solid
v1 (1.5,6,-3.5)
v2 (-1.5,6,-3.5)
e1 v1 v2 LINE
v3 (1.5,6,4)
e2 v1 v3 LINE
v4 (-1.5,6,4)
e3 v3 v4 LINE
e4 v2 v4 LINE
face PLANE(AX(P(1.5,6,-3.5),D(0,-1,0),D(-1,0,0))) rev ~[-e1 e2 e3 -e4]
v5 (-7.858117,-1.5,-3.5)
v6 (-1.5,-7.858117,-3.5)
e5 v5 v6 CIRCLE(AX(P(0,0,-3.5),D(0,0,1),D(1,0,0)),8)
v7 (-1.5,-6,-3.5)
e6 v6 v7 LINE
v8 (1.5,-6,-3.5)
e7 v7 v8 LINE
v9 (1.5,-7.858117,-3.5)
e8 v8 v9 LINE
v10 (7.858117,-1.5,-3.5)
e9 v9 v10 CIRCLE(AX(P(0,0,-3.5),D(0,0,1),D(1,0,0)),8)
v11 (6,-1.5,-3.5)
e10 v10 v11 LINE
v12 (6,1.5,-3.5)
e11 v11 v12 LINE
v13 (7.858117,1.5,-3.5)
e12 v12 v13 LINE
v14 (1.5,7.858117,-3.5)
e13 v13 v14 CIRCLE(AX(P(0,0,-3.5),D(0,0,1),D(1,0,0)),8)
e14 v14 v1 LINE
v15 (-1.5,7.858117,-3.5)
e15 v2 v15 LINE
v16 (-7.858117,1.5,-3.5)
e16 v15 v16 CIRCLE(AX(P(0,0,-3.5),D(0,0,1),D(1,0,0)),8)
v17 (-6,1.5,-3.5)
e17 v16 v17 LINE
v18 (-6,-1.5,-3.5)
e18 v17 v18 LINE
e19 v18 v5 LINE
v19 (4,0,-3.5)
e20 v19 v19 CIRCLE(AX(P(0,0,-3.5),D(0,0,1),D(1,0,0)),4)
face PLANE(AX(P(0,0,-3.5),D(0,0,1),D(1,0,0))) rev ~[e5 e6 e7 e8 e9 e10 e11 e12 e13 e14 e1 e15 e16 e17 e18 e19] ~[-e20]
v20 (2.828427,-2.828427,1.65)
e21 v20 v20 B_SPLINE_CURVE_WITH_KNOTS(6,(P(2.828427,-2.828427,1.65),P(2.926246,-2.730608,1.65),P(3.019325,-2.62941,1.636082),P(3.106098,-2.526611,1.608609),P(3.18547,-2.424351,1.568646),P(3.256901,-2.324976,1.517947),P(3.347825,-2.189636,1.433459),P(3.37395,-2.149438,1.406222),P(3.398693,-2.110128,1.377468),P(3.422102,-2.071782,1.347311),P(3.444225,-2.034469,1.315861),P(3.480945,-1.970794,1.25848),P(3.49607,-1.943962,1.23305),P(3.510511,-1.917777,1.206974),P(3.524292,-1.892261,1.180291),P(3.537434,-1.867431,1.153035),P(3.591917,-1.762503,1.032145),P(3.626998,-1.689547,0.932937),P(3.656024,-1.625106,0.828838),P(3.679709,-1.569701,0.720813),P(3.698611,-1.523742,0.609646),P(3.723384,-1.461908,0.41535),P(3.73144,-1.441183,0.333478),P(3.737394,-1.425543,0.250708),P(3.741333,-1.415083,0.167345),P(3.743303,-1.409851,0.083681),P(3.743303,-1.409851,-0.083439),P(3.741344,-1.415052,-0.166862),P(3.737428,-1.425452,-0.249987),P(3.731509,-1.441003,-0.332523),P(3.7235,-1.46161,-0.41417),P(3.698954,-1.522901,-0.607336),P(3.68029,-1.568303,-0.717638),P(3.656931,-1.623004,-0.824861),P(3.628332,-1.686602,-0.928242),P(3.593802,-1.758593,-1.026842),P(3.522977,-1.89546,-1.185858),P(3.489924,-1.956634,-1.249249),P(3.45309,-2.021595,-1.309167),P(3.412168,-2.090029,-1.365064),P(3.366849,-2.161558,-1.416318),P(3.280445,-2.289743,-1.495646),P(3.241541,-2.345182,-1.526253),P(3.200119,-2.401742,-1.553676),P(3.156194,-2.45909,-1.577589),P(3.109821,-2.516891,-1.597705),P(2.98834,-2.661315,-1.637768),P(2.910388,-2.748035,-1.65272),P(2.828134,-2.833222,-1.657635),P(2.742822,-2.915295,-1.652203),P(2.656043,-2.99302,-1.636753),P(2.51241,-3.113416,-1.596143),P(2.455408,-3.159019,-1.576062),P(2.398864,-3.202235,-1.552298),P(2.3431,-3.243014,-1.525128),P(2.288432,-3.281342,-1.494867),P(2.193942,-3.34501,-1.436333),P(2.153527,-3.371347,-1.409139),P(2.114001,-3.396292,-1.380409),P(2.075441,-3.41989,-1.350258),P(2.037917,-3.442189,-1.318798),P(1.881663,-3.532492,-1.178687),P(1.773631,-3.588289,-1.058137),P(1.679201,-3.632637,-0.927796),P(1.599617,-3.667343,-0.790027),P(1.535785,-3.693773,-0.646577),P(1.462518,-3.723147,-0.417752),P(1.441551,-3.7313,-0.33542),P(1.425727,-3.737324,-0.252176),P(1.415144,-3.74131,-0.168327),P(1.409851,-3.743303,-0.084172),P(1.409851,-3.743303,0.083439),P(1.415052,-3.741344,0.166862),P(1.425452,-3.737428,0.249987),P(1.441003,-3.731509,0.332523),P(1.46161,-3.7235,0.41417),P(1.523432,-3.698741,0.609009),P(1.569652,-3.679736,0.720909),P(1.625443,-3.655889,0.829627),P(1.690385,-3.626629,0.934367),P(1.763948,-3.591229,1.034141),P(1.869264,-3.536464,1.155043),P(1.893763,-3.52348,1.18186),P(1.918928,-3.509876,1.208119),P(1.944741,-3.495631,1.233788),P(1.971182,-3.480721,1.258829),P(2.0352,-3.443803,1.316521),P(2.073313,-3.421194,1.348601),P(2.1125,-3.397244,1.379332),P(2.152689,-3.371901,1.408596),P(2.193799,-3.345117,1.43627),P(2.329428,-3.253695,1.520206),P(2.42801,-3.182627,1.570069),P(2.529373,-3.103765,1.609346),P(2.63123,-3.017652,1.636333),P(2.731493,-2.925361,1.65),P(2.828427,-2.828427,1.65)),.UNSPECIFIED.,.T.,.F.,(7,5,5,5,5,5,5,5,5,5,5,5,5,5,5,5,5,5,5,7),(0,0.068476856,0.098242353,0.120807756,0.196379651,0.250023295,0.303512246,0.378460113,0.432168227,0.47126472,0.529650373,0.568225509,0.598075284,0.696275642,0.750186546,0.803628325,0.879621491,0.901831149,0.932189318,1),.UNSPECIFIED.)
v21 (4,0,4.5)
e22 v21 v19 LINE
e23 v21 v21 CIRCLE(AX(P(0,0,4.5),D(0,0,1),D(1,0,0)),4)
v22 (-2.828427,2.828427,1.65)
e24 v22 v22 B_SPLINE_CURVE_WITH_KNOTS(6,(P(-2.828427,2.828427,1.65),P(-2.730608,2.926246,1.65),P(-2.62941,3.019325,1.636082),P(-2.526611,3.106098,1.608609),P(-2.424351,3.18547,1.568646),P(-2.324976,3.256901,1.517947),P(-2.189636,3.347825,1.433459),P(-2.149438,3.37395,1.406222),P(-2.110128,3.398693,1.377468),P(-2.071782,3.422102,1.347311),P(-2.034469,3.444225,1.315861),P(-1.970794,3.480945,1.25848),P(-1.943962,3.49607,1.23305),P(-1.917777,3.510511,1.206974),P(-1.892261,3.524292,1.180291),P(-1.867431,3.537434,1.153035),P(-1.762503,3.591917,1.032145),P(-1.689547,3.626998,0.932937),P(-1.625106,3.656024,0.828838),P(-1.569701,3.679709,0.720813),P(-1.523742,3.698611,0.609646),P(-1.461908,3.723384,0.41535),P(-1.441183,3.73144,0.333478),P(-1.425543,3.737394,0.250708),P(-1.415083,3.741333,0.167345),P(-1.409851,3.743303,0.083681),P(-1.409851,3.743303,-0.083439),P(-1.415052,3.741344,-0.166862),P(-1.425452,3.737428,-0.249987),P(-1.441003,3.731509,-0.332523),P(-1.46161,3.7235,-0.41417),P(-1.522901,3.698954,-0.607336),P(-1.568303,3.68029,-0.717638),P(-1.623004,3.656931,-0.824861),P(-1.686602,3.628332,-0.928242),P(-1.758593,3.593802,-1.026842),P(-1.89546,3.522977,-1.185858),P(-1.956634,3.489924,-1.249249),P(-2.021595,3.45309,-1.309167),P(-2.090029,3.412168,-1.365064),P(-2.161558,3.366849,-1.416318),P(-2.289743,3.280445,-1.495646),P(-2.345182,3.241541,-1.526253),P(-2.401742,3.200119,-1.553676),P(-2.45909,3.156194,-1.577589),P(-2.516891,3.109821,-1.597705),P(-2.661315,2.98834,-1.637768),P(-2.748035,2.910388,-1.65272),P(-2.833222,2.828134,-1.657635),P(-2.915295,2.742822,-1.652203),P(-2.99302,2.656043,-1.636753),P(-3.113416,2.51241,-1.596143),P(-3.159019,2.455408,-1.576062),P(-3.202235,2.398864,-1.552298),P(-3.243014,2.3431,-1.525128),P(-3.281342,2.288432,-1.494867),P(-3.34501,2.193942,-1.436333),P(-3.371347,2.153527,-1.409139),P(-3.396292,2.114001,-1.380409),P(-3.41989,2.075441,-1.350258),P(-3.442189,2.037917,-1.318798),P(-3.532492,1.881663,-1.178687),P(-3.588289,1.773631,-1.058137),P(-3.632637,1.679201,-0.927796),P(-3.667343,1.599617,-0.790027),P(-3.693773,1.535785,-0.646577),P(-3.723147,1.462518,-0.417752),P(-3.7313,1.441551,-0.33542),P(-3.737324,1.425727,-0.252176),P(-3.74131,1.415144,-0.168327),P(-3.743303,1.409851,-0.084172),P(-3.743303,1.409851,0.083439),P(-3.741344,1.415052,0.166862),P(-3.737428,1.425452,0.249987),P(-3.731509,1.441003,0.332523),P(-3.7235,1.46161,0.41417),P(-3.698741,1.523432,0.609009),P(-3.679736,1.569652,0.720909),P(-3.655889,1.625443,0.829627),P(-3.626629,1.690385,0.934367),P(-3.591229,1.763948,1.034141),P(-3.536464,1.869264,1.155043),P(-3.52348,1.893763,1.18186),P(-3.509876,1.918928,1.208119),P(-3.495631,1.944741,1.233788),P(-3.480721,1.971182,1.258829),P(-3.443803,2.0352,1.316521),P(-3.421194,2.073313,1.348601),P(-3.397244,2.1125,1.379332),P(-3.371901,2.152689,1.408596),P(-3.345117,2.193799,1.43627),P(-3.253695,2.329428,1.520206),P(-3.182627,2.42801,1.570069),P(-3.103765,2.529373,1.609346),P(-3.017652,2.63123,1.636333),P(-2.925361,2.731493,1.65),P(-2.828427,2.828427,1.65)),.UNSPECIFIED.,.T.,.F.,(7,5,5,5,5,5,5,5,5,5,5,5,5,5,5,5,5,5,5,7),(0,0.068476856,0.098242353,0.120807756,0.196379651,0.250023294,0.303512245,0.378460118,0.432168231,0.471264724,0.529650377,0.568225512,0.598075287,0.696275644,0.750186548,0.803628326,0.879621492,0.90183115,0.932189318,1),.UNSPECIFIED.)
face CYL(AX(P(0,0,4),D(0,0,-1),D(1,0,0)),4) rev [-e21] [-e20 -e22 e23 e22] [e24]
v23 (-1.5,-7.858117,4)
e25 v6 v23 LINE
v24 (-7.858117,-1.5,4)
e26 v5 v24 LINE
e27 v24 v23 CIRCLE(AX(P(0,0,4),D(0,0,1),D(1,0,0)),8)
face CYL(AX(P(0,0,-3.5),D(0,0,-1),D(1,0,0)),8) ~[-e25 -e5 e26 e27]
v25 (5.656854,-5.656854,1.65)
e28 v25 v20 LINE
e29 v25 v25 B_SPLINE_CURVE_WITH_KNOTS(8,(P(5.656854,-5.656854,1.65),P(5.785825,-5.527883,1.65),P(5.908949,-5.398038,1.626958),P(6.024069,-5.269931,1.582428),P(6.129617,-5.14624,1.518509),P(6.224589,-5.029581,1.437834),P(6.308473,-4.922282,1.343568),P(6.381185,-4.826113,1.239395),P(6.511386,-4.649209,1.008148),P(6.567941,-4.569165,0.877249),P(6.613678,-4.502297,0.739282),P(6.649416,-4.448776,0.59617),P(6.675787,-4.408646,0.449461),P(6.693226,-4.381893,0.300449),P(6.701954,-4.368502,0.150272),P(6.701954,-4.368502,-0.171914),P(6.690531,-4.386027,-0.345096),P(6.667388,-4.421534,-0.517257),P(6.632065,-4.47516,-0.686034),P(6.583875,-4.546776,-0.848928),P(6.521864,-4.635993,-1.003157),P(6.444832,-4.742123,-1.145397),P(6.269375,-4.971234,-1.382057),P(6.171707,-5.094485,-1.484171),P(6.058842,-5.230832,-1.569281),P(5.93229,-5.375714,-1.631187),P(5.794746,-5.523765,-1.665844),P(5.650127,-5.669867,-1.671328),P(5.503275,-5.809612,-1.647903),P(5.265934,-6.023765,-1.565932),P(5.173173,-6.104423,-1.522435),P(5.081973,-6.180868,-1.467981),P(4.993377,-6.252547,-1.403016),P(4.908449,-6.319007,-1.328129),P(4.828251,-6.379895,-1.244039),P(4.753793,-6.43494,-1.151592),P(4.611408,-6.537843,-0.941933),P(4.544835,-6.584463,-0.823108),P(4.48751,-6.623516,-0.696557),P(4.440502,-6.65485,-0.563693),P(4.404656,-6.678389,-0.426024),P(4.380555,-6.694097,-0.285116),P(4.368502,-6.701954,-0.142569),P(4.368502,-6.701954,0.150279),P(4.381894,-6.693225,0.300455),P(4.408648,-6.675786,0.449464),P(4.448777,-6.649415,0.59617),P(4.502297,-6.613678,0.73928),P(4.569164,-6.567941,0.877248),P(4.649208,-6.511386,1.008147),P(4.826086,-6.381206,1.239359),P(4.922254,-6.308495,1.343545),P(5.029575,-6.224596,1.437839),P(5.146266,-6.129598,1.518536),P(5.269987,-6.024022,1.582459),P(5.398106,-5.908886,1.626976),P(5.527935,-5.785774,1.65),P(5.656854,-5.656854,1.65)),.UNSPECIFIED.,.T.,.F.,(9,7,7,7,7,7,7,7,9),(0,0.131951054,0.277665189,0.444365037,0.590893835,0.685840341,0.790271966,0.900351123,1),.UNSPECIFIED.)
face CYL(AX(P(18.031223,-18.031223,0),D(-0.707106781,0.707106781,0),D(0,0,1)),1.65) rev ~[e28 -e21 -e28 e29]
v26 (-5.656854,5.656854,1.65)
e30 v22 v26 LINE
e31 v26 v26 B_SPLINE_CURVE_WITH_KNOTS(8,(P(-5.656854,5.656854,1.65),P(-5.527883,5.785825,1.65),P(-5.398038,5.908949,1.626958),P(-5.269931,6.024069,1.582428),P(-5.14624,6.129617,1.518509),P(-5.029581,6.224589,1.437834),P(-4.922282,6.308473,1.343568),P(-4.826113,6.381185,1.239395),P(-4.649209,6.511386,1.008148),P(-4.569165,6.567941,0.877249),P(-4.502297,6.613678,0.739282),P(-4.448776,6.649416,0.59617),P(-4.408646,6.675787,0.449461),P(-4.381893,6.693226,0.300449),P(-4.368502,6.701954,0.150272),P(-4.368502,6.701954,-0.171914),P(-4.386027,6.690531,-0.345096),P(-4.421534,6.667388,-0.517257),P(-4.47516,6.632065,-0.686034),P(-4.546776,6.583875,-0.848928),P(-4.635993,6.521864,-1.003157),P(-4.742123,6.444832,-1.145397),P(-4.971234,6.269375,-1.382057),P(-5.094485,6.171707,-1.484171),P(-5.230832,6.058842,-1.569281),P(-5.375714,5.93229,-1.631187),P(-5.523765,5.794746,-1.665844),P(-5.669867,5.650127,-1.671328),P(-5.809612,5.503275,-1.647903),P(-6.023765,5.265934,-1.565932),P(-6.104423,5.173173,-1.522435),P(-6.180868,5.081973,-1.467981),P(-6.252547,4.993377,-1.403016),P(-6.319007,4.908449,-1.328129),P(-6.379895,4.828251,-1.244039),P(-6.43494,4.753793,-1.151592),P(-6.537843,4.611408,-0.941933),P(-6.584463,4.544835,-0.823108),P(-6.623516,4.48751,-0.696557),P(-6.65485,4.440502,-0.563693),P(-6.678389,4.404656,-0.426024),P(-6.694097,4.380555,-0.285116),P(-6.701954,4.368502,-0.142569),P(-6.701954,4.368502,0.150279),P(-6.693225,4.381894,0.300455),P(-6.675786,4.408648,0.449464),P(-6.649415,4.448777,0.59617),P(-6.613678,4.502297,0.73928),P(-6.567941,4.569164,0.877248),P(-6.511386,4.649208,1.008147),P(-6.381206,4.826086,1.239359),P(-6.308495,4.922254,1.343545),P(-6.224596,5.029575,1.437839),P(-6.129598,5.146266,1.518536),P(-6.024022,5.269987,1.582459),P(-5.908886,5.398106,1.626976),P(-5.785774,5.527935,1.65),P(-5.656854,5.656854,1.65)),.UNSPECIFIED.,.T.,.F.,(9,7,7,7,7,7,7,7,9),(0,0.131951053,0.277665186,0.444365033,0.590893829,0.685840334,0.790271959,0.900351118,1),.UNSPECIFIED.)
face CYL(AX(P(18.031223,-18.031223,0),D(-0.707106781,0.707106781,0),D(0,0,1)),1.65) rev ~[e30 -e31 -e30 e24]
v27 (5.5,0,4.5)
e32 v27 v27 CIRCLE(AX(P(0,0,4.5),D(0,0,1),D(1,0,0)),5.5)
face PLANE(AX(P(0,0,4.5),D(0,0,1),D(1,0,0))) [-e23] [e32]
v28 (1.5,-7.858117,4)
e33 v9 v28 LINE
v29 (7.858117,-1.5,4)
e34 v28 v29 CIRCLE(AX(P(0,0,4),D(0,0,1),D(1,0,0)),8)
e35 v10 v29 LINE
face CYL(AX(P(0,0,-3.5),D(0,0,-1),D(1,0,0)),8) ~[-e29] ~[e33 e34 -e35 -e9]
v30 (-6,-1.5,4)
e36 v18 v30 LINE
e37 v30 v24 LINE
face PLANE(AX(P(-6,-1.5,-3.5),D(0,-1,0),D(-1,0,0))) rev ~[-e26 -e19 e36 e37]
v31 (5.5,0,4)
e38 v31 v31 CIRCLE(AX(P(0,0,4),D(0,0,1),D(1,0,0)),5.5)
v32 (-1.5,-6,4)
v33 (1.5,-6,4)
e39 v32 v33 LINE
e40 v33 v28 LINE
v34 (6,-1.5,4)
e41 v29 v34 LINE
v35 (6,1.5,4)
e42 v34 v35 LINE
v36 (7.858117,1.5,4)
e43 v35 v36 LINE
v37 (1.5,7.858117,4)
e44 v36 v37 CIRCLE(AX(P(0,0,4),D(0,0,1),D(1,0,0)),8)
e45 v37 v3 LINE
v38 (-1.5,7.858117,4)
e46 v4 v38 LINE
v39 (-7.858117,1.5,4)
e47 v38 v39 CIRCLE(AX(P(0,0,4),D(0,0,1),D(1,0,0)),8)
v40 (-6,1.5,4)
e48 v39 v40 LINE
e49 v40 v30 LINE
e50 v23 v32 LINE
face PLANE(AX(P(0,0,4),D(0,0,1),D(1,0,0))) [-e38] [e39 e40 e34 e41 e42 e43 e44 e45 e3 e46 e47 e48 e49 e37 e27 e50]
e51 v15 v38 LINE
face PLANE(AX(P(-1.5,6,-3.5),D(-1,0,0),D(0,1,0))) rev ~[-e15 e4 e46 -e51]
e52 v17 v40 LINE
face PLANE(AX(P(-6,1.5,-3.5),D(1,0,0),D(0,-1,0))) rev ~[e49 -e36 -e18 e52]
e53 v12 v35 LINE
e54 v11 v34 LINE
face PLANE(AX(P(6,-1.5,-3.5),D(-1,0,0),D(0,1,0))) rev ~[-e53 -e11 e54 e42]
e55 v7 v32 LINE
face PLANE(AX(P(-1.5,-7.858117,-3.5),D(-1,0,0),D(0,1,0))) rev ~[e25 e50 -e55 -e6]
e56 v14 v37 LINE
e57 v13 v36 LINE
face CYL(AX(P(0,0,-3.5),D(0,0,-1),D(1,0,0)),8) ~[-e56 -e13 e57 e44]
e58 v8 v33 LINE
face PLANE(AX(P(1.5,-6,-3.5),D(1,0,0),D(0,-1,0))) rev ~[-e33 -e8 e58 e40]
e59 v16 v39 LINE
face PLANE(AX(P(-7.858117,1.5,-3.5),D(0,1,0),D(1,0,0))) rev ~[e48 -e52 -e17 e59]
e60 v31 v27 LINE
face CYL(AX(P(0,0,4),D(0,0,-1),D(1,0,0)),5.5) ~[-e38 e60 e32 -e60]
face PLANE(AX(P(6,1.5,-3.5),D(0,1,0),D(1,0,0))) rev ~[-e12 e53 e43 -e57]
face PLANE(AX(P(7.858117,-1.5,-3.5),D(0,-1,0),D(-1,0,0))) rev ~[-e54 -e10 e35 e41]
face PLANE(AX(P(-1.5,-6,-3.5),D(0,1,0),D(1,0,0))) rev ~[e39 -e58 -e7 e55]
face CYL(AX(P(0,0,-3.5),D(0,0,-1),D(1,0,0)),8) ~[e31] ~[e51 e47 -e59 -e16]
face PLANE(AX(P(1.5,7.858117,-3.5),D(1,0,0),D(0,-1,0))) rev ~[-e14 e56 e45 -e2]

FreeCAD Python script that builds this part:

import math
import FreeCAD as App
import Part
import Sketcher

doc = App.newDocument("Part")
body = doc.addObject("PartDesign::Body", "Body")

# Sketch on XY plane
sketch1 = body.newObject("Sketcher::SketchObject", "Sketch")
sketch1.AttachmentSupport = (doc.getObject("XY_Plane"), [""])
sketch1.MapMode = "FlatFace"
sketch1.AttachmentOffset = App.Placement(App.Vector(0, 0, -3.5), App.Rotation())
sketch1.addGeometry([
    Part.Circle(App.Vector(0, 0, 0), App.Vector(0, 0, 1), 8),
    Part.Circle(App.Vector(0, 0, 0), App.Vector(0, 0, 1), 4),
], False)
sketch1.addConstraint([
    Sketcher.Constraint("Coincident", 0, 3, -1, 1),
    Sketcher.Constraint("Coincident", 1, 3, -1, 1),
    Sketcher.Constraint("Diameter", 0, 16.0),
    Sketcher.Constraint("Diameter", 1, 8.0),
])
pad1 = body.newObject("PartDesign::Pad", "Pad")
pad1.Profile = sketch1
pad1.Length = 7.5

# Sketch on XY plane
sketch2 = body.newObject("Sketcher::SketchObject", "Sketch001")
sketch2.AttachmentSupport = (doc.getObject("XY_Plane"), [""])
sketch2.MapMode = "FlatFace"
sketch2.AttachmentOffset = App.Placement(App.Vector(0, 0, 4), App.Rotation())
sketch2.addGeometry([
    Part.Circle(App.Vector(0, 0, 0), App.Vector(0, 0, 1), 5.5),
    Part.Circle(App.Vector(0, 0, 0), App.Vector(0, 0, 1), 4),
], False)
sketch2.addConstraint([
    Sketcher.Constraint("Coincident", 0, 3, -1, 1),
    Sketcher.Constraint("Coincident", 1, 3, -1, 1),
    Sketcher.Constraint("Diameter", 0, 11.0),
    Sketcher.Constraint("Diameter", 1, 8.0),
])
pad2 = body.newObject("PartDesign::Pad", "Pad001")
pad2.Profile = sketch2
pad2.Length = 0.5

# Sketch on XY plane
sketch3 = body.newObject("Sketcher::SketchObject", "Sketch002")
sketch3.AttachmentSupport = (doc.getObject("XY_Plane"), [""])
sketch3.MapMode = "FlatFace"
sketch3.AttachmentOffset = App.Placement(App.Vector(0, 0, -3.5), App.Rotation())
sketch3.addGeometry([
    Part.LineSegment(App.Vector(7.858117, -1.5, 0), App.Vector(6, -1.5, 0)),  # 0
    Part.LineSegment(App.Vector(6, -1.5, 0), App.Vector(6, 1.5, 0)),  # 1
    Part.LineSegment(App.Vector(6, 1.5, 0), App.Vector(7.858117, 1.5, 0)),  # 2
    Part.ArcOfCircle(Part.Circle(App.Vector(0, 0, 0), App.Vector(0, 0, 1), 8), math.radians(-10.806923), math.radians(10.806923)),  # 3
    Part.LineSegment(App.Vector(-1.5, -7.858117, 0), App.Vector(-1.5, -6, 0)),  # 4
    Part.LineSegment(App.Vector(-1.5, -6, 0), App.Vector(1.5, -6, 0)),  # 5
    Part.LineSegment(App.Vector(1.5, -6, 0), App.Vector(1.5, -7.858117, 0)),  # 6
    Part.ArcOfCircle(Part.Circle(App.Vector(0, 0, 0), App.Vector(0, 0, 1), 8), math.radians(-100.806923), math.radians(-79.193077)),  # 7
    Part.LineSegment(App.Vector(1.5, 6, 0), App.Vector(-1.5, 6, 0)),  # 8
    Part.LineSegment(App.Vector(-1.5, 6, 0), App.Vector(-1.5, 7.858117, 0)),  # 9
    Part.ArcOfCircle(Part.Circle(App.Vector(0, 0, 0), App.Vector(0, 0, 1), 8), math.radians(79.193077), math.radians(100.806923)),  # 10
    Part.LineSegment(App.Vector(1.5, 7.858117, 0), App.Vector(1.5, 6, 0)),  # 11
    Part.LineSegment(App.Vector(-6, -1.5, 0), App.Vector(-7.858117, -1.5, 0)),  # 12
    Part.ArcOfCircle(Part.Circle(App.Vector(0, 0, 0), App.Vector(0, 0, 1), 8), math.radians(169.193077), math.radians(190.806923)),  # 13
    Part.LineSegment(App.Vector(-7.858117, 1.5, 0), App.Vector(-6, 1.5, 0)),  # 14
    Part.LineSegment(App.Vector(-6, 1.5, 0), App.Vector(-6, -1.5, 0)),  # 15
], False)
sketch3.addConstraint([
    Sketcher.Constraint("Coincident", 0, 2, 1, 1),
    Sketcher.Constraint("Coincident", 1, 2, 2, 1),
    Sketcher.Constraint("Coincident", 2, 2, 3, 2),
    Sketcher.Constraint("Coincident", 3, 1, 0, 1),
    Sketcher.Constraint("Coincident", 4, 2, 5, 1),
    Sketcher.Constraint("Coincident", 5, 2, 6, 1),
    Sketcher.Constraint("Coincident", 6, 2, 7, 2),
    Sketcher.Constraint("Coincident", 7, 1, 4, 1),
    Sketcher.Constraint("Coincident", 8, 2, 9, 1),
    Sketcher.Constraint("Coincident", 9, 2, 10, 2),
    Sketcher.Constraint("Coincident", 10, 1, 11, 1),
    Sketcher.Constraint("Coincident", 11, 2, 8, 1),
    Sketcher.Constraint("Coincident", 12, 2, 13, 2),
    Sketcher.Constraint("Coincident", 13, 1, 14, 1),
    Sketcher.Constraint("Coincident", 14, 2, 15, 1),
    Sketcher.Constraint("Coincident", 15, 2, 12, 1),
    Sketcher.Constraint("Horizontal", 0),
    Sketcher.Constraint("Vertical", 1),
    Sketcher.Constraint("Horizontal", 2),
    Sketcher.Constraint("Vertical", 4),
    Sketcher.Constraint("Horizontal", 5),
    Sketcher.Constraint("Vertical", 6),
    Sketcher.Constraint("Horizontal", 8),
    Sketcher.Constraint("Vertical", 9),
    Sketcher.Constraint("Vertical", 11),
    Sketcher.Constraint("Horizontal", 12),
    Sketcher.Constraint("Horizontal", 14),
    Sketcher.Constraint("Vertical", 15),
    Sketcher.Constraint("Coincident", 3, 3, -1, 1),
    Sketcher.Constraint("Coincident", 7, 3, -1, 1),
    Sketcher.Constraint("Coincident", 10, 3, -1, 1),
    Sketcher.Constraint("Coincident", 13, 3, -1, 1),
    Sketcher.Constraint("Equal", 3, 7),
    Sketcher.Constraint("Equal", 7, 10),
    Sketcher.Constraint("Equal", 10, 13),
    Sketcher.Constraint("Symmetric", 5, 2, 8, 2, -1, 1),
    Sketcher.Constraint("Symmetric", 0, 2, 14, 2, -1, 1),
    Sketcher.Constraint("Horizontal", 6, 2, 7, 1),
    Sketcher.Constraint("Horizontal", 9, 2, 10, 1),
    Sketcher.Constraint("Horizontal", 3, 1, 12, 2),
    Sketcher.Constraint("Horizontal", 2, 2, 13, 1),
    Sketcher.Constraint("Equal", 8, 1),
    Sketcher.Constraint("Equal", 14, 4),
    Sketcher.Constraint("Radius", 3, 8.0),
    Sketcher.Constraint("DistanceX", 5, 1, 5, 2, 3.0),
    Sketcher.Constraint("DistanceX", -1, 1, 0, 2, 6.0),
])
pocket1 = body.newObject("PartDesign::Pocket", "Pocket")
pocket1.Profile = sketch3
pocket1.Length = 7.5
pocket1.Reversed = True

# Sketch on an angled plane
sketch4 = body.newObject("Sketcher::SketchObject", "Sketch003")
sketch4.Placement = App.Placement(App.Vector(5.656854, -5.656854, 0), App.Rotation(App.Vector(0, 0, -1), App.Vector(0.707106781, 0.707106781, 0), App.Vector(0.707106781, -0.707106781, 0), "ZXY"))
sketch4.addGeometry(Part.Circle(App.Vector(0, 0, 0), App.Vector(0, 0, 1), 1.65), False)
sketch4.addConstraint([
    Sketcher.Constraint("Coincident", 0, 3, -1, 1),
    Sketcher.Constraint("Diameter", 0, 3.3),
])
doc.recompute()
hole = body.newObject("PartDesign::Hole", "Hole")
hole.Profile = sketch4
hole.ThreadType = "None"
hole.Diameter = 3.3
hole.DepthType = "Dimension"
hole.Depth = 17.5
hole.DrillPoint = "Angled"
hole.DrillPointAngle = 118

doc.recompute()
